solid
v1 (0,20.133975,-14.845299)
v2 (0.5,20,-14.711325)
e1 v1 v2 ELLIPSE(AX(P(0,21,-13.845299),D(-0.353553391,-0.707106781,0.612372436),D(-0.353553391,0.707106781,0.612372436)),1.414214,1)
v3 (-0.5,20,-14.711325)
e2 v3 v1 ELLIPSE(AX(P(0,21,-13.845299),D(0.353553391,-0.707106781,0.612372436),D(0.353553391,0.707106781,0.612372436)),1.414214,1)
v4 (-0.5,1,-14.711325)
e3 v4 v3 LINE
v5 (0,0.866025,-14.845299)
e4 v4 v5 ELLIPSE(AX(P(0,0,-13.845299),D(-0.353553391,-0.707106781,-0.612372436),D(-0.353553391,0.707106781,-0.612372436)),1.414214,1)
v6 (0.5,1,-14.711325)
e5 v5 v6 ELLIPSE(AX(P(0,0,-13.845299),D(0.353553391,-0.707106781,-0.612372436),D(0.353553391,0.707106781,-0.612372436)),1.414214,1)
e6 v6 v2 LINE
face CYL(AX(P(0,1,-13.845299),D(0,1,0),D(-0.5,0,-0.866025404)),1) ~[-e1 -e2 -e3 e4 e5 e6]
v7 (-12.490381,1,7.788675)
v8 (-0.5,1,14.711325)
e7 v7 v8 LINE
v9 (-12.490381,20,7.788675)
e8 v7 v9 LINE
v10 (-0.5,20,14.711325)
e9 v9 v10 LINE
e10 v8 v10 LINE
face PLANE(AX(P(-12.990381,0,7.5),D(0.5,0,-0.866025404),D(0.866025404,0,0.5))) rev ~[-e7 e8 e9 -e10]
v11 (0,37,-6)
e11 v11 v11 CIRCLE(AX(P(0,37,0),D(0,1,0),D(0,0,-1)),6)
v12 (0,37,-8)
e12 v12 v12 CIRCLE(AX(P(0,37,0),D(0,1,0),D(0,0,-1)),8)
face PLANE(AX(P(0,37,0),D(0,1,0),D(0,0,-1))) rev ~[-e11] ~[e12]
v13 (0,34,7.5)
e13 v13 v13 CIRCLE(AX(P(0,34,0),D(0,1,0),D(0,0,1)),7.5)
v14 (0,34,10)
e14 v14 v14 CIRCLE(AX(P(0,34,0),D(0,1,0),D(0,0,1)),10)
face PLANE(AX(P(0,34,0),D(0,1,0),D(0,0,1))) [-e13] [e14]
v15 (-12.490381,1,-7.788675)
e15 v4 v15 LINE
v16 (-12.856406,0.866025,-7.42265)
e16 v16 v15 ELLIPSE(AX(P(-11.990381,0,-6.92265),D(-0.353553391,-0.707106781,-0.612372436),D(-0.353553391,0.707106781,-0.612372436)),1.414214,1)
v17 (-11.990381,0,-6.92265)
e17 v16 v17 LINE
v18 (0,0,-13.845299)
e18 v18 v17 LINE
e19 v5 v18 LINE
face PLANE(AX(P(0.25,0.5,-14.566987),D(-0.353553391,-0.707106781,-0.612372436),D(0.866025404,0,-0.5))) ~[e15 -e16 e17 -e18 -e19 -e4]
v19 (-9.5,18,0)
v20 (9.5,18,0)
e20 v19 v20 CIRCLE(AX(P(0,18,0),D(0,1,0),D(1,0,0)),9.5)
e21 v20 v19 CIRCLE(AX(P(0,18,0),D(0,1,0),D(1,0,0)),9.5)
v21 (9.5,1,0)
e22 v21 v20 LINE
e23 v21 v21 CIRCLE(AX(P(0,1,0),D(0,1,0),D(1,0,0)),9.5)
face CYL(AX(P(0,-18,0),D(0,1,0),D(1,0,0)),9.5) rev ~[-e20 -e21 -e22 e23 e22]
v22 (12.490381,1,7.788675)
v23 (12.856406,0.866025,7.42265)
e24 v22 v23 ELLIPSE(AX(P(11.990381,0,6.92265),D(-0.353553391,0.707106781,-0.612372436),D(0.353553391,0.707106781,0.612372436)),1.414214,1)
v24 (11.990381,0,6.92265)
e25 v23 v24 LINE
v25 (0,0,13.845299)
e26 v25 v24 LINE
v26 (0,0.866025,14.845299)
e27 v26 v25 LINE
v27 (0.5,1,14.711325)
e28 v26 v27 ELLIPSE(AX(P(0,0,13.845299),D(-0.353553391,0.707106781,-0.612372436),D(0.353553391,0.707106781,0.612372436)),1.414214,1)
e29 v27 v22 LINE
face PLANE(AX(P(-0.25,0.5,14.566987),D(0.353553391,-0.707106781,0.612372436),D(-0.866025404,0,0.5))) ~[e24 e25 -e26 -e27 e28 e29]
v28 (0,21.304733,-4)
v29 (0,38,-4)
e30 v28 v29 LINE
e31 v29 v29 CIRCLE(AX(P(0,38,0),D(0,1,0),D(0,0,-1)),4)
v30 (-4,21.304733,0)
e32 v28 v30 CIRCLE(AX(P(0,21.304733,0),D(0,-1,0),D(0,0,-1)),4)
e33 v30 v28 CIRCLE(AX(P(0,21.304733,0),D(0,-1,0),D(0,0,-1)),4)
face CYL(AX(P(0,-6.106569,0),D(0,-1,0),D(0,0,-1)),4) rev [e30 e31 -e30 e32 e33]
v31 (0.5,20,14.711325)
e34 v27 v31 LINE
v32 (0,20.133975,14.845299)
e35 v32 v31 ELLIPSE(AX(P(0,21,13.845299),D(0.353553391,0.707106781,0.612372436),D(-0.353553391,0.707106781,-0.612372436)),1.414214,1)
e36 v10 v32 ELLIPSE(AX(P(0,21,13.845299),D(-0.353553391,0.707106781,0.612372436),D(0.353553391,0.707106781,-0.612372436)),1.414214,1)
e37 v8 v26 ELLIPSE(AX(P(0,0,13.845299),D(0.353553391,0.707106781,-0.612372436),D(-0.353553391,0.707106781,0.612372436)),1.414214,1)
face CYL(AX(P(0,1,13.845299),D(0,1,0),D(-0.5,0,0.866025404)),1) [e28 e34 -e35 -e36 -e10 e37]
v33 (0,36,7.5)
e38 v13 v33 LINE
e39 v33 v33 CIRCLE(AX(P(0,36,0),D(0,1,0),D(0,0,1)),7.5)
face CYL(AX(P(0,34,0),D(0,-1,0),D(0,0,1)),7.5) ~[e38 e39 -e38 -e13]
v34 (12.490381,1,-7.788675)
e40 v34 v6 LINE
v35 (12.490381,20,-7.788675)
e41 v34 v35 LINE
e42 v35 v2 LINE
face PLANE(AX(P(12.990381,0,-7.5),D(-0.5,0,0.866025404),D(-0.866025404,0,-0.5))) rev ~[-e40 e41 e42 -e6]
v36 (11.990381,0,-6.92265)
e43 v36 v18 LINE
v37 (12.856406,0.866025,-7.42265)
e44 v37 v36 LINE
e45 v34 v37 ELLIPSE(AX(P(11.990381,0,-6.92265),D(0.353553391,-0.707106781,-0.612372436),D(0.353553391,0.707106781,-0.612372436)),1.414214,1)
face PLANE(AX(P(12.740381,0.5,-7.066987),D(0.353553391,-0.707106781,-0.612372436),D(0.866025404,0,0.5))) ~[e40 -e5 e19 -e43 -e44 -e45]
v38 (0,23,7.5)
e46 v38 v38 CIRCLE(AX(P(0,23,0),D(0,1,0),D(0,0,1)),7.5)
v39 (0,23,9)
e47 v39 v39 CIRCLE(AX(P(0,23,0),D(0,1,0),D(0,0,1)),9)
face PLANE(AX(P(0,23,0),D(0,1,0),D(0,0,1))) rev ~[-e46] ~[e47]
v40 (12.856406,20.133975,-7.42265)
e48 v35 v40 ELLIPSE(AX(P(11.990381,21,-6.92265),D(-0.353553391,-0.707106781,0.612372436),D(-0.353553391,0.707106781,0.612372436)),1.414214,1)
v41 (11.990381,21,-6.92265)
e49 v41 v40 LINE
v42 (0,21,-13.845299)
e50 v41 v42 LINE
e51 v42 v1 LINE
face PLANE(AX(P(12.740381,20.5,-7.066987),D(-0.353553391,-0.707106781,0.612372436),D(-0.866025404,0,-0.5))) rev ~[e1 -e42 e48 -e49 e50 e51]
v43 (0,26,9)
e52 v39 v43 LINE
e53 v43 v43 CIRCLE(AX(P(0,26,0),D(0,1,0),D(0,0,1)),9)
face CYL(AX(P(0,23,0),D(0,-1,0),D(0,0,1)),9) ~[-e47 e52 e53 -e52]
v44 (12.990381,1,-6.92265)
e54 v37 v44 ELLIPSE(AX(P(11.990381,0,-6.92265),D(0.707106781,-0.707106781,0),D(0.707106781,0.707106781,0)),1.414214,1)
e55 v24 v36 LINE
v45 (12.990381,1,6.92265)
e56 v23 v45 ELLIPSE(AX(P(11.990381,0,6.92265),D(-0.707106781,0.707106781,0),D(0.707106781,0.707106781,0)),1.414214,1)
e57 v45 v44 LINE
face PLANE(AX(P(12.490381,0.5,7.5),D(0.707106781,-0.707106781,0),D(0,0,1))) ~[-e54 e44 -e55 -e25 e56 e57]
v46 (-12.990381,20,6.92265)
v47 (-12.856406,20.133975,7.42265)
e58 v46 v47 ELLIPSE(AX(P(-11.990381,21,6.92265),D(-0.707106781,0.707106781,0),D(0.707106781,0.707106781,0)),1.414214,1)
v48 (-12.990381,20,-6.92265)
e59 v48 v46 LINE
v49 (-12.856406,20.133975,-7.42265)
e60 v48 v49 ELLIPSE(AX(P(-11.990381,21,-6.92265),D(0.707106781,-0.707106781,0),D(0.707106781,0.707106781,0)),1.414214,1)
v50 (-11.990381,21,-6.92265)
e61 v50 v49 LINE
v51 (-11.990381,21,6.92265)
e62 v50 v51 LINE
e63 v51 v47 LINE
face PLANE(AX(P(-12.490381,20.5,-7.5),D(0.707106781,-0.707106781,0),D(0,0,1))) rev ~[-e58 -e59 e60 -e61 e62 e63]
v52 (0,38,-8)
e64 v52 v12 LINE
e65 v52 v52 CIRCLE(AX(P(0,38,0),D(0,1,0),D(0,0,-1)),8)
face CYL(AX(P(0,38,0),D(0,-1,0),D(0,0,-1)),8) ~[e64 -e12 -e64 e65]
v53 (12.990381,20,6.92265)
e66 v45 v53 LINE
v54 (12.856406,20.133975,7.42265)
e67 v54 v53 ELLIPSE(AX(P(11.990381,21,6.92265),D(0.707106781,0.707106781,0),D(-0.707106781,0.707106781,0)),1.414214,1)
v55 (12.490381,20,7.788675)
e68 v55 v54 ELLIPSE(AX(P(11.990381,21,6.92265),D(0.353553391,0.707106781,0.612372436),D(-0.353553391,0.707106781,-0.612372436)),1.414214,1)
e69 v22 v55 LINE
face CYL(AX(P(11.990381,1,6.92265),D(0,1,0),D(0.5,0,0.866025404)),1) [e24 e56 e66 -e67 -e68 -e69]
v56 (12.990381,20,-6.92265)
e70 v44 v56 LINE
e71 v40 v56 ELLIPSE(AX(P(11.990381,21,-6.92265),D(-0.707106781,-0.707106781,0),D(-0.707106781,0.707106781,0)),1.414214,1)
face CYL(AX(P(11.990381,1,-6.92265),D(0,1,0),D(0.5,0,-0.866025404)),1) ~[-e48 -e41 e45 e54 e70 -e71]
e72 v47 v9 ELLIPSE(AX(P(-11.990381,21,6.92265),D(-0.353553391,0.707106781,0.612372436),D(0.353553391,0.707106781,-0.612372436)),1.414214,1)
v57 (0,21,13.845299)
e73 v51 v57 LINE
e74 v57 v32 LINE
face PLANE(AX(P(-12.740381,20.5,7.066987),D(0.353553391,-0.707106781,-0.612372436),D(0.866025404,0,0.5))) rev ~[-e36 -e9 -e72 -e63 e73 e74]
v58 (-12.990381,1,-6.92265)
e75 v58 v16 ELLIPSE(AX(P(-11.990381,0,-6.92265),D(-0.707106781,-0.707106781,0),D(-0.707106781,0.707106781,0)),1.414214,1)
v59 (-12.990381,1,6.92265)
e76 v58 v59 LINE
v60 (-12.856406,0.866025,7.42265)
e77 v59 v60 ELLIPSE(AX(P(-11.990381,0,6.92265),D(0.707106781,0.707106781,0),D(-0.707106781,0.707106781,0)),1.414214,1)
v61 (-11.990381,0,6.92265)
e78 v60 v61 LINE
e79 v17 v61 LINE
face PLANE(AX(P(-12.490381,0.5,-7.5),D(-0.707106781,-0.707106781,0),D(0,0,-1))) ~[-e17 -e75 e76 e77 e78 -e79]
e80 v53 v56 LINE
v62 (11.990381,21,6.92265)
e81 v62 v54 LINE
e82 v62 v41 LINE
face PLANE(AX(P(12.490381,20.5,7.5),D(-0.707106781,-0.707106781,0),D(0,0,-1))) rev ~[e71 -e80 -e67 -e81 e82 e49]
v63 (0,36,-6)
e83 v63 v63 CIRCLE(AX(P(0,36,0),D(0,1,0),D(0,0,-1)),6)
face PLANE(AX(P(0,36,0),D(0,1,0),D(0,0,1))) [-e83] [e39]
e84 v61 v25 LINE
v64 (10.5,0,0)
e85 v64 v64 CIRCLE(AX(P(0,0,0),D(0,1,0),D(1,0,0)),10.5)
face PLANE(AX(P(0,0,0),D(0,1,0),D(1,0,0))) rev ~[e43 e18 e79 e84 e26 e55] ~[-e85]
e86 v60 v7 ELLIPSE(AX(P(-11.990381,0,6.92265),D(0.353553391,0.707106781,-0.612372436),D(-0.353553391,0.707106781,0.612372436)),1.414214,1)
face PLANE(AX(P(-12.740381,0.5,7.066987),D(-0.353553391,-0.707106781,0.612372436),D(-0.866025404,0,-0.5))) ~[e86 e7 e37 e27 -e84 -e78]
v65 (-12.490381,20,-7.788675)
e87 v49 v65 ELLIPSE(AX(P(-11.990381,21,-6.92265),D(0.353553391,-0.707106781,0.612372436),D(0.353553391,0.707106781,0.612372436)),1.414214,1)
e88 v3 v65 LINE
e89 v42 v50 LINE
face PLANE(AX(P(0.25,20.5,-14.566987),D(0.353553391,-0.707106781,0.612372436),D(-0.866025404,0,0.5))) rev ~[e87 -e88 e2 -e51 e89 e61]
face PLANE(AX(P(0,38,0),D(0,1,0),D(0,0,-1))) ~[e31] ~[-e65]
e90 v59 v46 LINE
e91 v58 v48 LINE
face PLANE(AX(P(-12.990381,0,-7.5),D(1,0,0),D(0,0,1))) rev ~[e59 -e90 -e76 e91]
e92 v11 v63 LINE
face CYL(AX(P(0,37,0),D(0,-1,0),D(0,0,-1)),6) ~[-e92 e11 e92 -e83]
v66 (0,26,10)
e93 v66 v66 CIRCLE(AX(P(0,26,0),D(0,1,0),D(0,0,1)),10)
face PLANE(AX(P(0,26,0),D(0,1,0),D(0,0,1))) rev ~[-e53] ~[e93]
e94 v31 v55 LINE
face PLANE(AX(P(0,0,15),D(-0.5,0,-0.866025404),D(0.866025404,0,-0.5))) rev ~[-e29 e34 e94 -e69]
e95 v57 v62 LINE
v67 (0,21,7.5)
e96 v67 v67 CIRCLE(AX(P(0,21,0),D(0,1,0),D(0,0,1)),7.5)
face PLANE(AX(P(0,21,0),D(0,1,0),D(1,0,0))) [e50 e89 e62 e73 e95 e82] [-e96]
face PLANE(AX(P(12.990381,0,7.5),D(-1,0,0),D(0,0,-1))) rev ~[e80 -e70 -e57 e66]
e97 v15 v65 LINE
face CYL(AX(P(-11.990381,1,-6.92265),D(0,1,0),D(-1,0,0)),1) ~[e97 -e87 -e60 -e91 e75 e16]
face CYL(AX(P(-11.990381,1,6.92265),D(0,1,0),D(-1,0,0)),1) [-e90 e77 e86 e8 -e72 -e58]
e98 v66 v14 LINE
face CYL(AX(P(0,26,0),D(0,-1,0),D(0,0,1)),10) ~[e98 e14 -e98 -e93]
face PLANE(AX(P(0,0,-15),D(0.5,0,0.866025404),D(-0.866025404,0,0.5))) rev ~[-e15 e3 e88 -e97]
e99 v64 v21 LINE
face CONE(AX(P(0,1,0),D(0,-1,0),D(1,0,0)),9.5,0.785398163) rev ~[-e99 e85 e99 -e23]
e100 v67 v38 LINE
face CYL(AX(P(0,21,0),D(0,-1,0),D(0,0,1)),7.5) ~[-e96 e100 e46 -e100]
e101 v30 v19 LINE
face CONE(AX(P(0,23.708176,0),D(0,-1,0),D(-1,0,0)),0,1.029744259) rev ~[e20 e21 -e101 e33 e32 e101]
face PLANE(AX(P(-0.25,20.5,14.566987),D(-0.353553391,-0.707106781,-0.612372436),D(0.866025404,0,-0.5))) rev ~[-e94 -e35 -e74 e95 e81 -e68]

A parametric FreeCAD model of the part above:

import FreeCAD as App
import Part
import Sketcher

V = App.Vector
Q = App.Units.Quantity


def edges_at(feature, points):
    """Names of the edges that pass closest to the given points."""
    edges = feature.Shape.Edges
    near = lambda p: min(range(len(edges)), key=lambda i: edges[i].distToShape(Part.Vertex(*p))[0])
    return sorted({f"Edge{near(p) + 1}" for p in points})

doc = App.newDocument("Part")
body = doc.addObject("PartDesign::Body", "Body")

# Sketch on XZ plane
sketch1 = body.newObject("Sketcher::SketchObject", "Sketch")
sketch1.AttachmentSupport = (doc.getObject("XZ_Plane"), [""])
sketch1.MapMode = "FlatFace"
sketch1.addGeometry(Part.LineSegment(V(0, -15, 0), V(-13, -8, 0)), False)
sketch1.addGeometry(Part.LineSegment(V(-13, -8, 0), V(-13, 8, 0)), False)
sketch1.addGeometry(Part.LineSegment(V(-13, 8, 0), V(0, 15, 0)), False)
sketch1.addGeometry(Part.LineSegment(V(0, 15, 0), V(13, 8, 0)), False)
sketch1.addGeometry(Part.LineSegment(V(13, 8, 0), V(13, -8, 0)), False)
sketch1.addGeometry(Part.LineSegment(V(13, -8, 0), V(0, -15, 0)), False)
sketch1.addConstraint(Sketcher.Constraint("Coincident", 0, 2, 1, 1))
sketch1.addConstraint(Sketcher.Constraint("Coincident", 1, 2, 2, 1))
sketch1.addConstraint(Sketcher.Constraint("Coincident", 2, 2, 3, 1))
sketch1.addConstraint(Sketcher.Constraint("Coincident", 3, 2, 4, 1))
sketch1.addConstraint(Sketcher.Constraint("Coincident", 4, 2, 5, 1))
sketch1.addConstraint(Sketcher.Constraint("Coincident", 5, 2, 0, 1))
sketch1.addConstraint(Sketcher.Constraint("Vertical", 1))
sketch1.addConstraint(Sketcher.Constraint("Vertical", 4))
sketch1.addConstraint(Sketcher.Constraint("Symmetric", 0, 2, 3, 2, -1, 1))
sketch1.addConstraint(Sketcher.Constraint("Symmetric", 2, 2, 5, 2, -1, 1))
sketch1.addConstraint(Sketcher.Constraint("PointOnObject", 2, 2, -2))
sketch1.addConstraint(Sketcher.Constraint("Parallel", 2, 5))
sketch1.addConstraint(Sketcher.Constraint("Horizontal", 1, 2, 3, 2))
sketch1.addConstraint(Sketcher.Constraint("DistanceY", 1, 1, 1, 2, Q("15 mm")))
sketch1.addConstraint(Sketcher.Constraint("Angle", 0, Q("150 deg")))
sketch1.addConstraint(Sketcher.Constraint("Distance", 0, Q("15 mm")))
pad1 = body.newObject("PartDesign::Pad", "Pad")
pad1.Profile = sketch1
pad1.Length = 21
pad1.Reversed = True

# Sketch on XZ plane
sketch2 = body.newObject("Sketcher::SketchObject", "Sketch001")
sketch2.AttachmentSupport = (doc.getObject("XZ_Plane"), [""])
sketch2.MapMode = "FlatFace"
sketch2.AttachmentOffset = App.Placement(V(0, 0, -21), App.Rotation())
sketch2.addGeometry(Part.Circle(V(0, 0, 0), V(0, 0, 1), 8), False)
sketch2.addConstraint(Sketcher.Constraint("Coincident", 0, 3, -1, 1))
sketch2.addConstraint(Sketcher.Constraint("Diameter", 0, Q("15 mm")))
pad2 = body.newObject("PartDesign::Pad", "Pad001")
pad2.Profile = sketch2
pad2.Length = 2
pad2.Reversed = True

# Sketch on XZ plane
sketch3 = body.newObject("Sketcher::SketchObject", "Sketch002")
sketch3.AttachmentSupport = (doc.getObject("XZ_Plane"), [""])
sketch3.MapMode = "FlatFace"
sketch3.AttachmentOffset = App.Placement(V(0, 0, -23), App.Rotation())
sketch3.addGeometry(Part.Circle(V(0, 0, 0), V(0, 0, 1), 9), False)
sketch3.addConstraint(Sketcher.Constraint("Coincident", 0, 3, -1, 1))
sketch3.addConstraint(Sketcher.Constraint("Diameter", 0, Q("18 mm")))
pad3 = body.newObject("PartDesign::Pad", "Pad002")
pad3.Profile = sketch3
pad3.Length = 3
pad3.Reversed = True

# Sketch on XZ plane
sketch4 = body.newObject("Sketcher::SketchObject", "Sketch003")
sketch4.AttachmentSupport = (doc.getObject("XZ_Plane"), [""])
sketch4.MapMode = "FlatFace"
sketch4.AttachmentOffset = App.Placement(V(0, 0, -26), App.Rotation())
sketch4.addGeometry(Part.Circle(V(0, 0, 0), V(0, 0, 1), 10), False)
sketch4.addConstraint(Sketcher.Constraint("Coincident", 0, 3, -1, 1))
sketch4.addConstraint(Sketcher.Constraint("Diameter", 0, Q("20 mm")))
pad4 = body.newObject("PartDesign::Pad", "Pad003")
pad4.Profile = sketch4
pad4.Length = 8
pad4.Reversed = True

# Sketch on XZ plane
sketch5 = body.newObject("Sketcher::SketchObject", "Sketch004")
sketch5.AttachmentSupport = (doc.getObject("XZ_Plane"), [""])
sketch5.MapMode = "FlatFace"
sketch5.AttachmentOffset = App.Placement(V(0, 0, -34), App.Rotation())
sketch5.addGeometry(Part.Circle(V(0, 0, 0), V(0, 0, 1), 8), False)
sketch5.addConstraint(Sketcher.Constraint("Coincident", 0, 3, -1, 1))
sketch5.addConstraint(Sketcher.Constraint("Diameter", 0, Q("15 mm")))
pad5 = body.newObject("PartDesign::Pad", "Pad004")
pad5.Profile = sketch5
pad5.Length = 2
pad5.Reversed = True

# Sketch on XY plane
sketch6 = body.newObject("Sketcher::SketchObject", "Sketch005")
sketch6.AttachmentSupport = (doc.getObject("XY_Plane"), [""])
sketch6.MapMode = "FlatFace"
sketch6.addGeometry(Part.LineSegment(V(-8, 37, 0), V(-6, 37, 0)), False)
sketch6.addGeometry(Part.LineSegment(V(-6, 37, 0), V(-6, 36, 0)), False)
sketch6.addGeometry(Part.LineSegment(V(-6, 36, 0), V(-4, 36, 0)), False)
sketch6.addGeometry(Part.LineSegment(V(-4, 36, 0), V(-4, 38, 0)), False)
sketch6.addGeometry(Part.LineSegment(V(-4, 38, 0), V(-8, 38, 0)), False)
sketch6.addGeometry(Part.LineSegment(V(-8, 38, 0), V(-8, 37, 0)), False)
sketch6.addConstraint(Sketcher.Constraint("Coincident", 0, 2, 1, 1))
sketch6.addConstraint(Sketcher.Constraint("Coincident", 1, 2, 2, 1))
sketch6.addConstraint(Sketcher.Constraint("Coincident", 2, 2, 3, 1))
sketch6.addConstraint(Sketcher.Constraint("Coincident", 3, 2, 4, 1))
sketch6.addConstraint(Sketcher.Constraint("Coincident", 4, 2, 5, 1))
sketch6.addConstraint(Sketcher.Constraint("Coincident", 5, 2, 0, 1))
sketch6.addConstraint(Sketcher.Constraint("Horizontal", 0))
sketch6.addConstraint(Sketcher.Constraint("Vertical", 1))
sketch6.addConstraint(Sketcher.Constraint("Horizontal", 2))
sketch6.addConstraint(Sketcher.Constraint("Vertical", 3))
sketch6.addConstraint(Sketcher.Constraint("Horizontal", 4))
sketch6.addConstraint(Sketcher.Constraint("Vertical", 5))
sketch6.addConstraint(Sketcher.Constraint("Equal", 0, 2))
sketch6.addConstraint(Sketcher.Constraint("Equal", 2, 3))
sketch6.addConstraint(Sketcher.Constraint("Equal", 1, 5))
sketch6.addConstraint(Sketcher.Constraint("DistanceX", 0, 1, 0, 2, Q("2 mm")))
sketch6.addConstraint(Sketcher.Constraint("DistanceX", 0, 2, -1, 1, Q("6 mm")))
sketch6.addConstraint(Sketcher.Constraint("DistanceY", -1, 1, 0, 2, Q("37 mm")))
revolution = body.newObject("PartDesign::Revolution", "Revolution")
revolution.Profile = sketch6
revolution.ReferenceAxis = (sketch6, ["V_Axis"])
revolution.Angle = 360

# Sketch on XZ plane
sketch7 = body.newObject("Sketcher::SketchObject", "Sketch006")
sketch7.AttachmentSupport = (doc.getObject("XZ_Plane"), [""])
sketch7.MapMode = "FlatFace"
sketch7.AttachmentOffset = App.Placement(V(0, 0, -36), App.Rotation())
sketch7.addGeometry(Part.Circle(V(0, 0, 0), V(0, 0, 1), 4), False)
sketch7.addConstraint(Sketcher.Constraint("Coincident", 0, 3, -1, 1))
sketch7.addConstraint(Sketcher.Constraint("Diameter", 0, Q("8 mm")))
pocket1 = body.newObject("PartDesign::Pocket", "Pocket")
pocket1.Profile = sketch7
pocket1.Type = "ThroughAll"
pocket1.Midplane = True

# Sketch on XZ plane
sketch8 = body.newObject("Sketcher::SketchObject", "Sketch007")
sketch8.AttachmentSupport = (doc.getObject("XZ_Plane"), [""])
sketch8.MapMode = "FlatFace"
sketch8.addGeometry(Part.Circle(V(0, 0, 0), V(0, 0, 1), 10), False)
sketch8.addConstraint(Sketcher.Constraint("Coincident", 0, 3, -1, 1))
sketch8.addConstraint(Sketcher.Constraint("Diameter", 0, Q("19 mm")))
doc.recompute()
hole = body.newObject("PartDesign::Hole", "Hole")
hole.Profile = sketch8
hole.ThreadType = "None"
hole.Diameter = 19
hole.DepthType = "Dimension"
hole.Depth = 18
hole.DrillPoint = "Angled"
hole.DrillPointAngle = 118
doc.recompute()

chamfer = body.newObject("PartDesign::Chamfer", "Chamfer")
chamfer.Base = (hole, edges_at(hole, [
    (-12.99, 21, 0),
    (-6.495, 21, 11.25),
    (6.495, 21, 11.25),
    (12.99, 21, 0),
    (6.495, 21, -11.25),
    (-9.5, 0, 0),
    (12.99, 0, 0),
    (6.495, 0, 11.25),
    (-6.495, 0, 11.25),
    (-6.495, 21, -11.25),
    (-12.99, 0, 0),
    (-6.495, 0, -11.25),
    (6.495, 0, -11.25),
]))
chamfer.Size = 1
doc.recompute()

fillet = body.newObject("PartDesign::Fillet", "Fillet")
fillet.Base = (chamfer, edges_at(chamfer, [
    (12.99, 10.5, -7.5),
    (12.99, 10.5, 7.5),
    (0, 10.5, 15),
    (-12.99, 10.5, 7.5),
    (-12.99, 10.5, -7.5),
    (0, 10.5, -15),
]))
fillet.Radius = 1

doc.recompute()
